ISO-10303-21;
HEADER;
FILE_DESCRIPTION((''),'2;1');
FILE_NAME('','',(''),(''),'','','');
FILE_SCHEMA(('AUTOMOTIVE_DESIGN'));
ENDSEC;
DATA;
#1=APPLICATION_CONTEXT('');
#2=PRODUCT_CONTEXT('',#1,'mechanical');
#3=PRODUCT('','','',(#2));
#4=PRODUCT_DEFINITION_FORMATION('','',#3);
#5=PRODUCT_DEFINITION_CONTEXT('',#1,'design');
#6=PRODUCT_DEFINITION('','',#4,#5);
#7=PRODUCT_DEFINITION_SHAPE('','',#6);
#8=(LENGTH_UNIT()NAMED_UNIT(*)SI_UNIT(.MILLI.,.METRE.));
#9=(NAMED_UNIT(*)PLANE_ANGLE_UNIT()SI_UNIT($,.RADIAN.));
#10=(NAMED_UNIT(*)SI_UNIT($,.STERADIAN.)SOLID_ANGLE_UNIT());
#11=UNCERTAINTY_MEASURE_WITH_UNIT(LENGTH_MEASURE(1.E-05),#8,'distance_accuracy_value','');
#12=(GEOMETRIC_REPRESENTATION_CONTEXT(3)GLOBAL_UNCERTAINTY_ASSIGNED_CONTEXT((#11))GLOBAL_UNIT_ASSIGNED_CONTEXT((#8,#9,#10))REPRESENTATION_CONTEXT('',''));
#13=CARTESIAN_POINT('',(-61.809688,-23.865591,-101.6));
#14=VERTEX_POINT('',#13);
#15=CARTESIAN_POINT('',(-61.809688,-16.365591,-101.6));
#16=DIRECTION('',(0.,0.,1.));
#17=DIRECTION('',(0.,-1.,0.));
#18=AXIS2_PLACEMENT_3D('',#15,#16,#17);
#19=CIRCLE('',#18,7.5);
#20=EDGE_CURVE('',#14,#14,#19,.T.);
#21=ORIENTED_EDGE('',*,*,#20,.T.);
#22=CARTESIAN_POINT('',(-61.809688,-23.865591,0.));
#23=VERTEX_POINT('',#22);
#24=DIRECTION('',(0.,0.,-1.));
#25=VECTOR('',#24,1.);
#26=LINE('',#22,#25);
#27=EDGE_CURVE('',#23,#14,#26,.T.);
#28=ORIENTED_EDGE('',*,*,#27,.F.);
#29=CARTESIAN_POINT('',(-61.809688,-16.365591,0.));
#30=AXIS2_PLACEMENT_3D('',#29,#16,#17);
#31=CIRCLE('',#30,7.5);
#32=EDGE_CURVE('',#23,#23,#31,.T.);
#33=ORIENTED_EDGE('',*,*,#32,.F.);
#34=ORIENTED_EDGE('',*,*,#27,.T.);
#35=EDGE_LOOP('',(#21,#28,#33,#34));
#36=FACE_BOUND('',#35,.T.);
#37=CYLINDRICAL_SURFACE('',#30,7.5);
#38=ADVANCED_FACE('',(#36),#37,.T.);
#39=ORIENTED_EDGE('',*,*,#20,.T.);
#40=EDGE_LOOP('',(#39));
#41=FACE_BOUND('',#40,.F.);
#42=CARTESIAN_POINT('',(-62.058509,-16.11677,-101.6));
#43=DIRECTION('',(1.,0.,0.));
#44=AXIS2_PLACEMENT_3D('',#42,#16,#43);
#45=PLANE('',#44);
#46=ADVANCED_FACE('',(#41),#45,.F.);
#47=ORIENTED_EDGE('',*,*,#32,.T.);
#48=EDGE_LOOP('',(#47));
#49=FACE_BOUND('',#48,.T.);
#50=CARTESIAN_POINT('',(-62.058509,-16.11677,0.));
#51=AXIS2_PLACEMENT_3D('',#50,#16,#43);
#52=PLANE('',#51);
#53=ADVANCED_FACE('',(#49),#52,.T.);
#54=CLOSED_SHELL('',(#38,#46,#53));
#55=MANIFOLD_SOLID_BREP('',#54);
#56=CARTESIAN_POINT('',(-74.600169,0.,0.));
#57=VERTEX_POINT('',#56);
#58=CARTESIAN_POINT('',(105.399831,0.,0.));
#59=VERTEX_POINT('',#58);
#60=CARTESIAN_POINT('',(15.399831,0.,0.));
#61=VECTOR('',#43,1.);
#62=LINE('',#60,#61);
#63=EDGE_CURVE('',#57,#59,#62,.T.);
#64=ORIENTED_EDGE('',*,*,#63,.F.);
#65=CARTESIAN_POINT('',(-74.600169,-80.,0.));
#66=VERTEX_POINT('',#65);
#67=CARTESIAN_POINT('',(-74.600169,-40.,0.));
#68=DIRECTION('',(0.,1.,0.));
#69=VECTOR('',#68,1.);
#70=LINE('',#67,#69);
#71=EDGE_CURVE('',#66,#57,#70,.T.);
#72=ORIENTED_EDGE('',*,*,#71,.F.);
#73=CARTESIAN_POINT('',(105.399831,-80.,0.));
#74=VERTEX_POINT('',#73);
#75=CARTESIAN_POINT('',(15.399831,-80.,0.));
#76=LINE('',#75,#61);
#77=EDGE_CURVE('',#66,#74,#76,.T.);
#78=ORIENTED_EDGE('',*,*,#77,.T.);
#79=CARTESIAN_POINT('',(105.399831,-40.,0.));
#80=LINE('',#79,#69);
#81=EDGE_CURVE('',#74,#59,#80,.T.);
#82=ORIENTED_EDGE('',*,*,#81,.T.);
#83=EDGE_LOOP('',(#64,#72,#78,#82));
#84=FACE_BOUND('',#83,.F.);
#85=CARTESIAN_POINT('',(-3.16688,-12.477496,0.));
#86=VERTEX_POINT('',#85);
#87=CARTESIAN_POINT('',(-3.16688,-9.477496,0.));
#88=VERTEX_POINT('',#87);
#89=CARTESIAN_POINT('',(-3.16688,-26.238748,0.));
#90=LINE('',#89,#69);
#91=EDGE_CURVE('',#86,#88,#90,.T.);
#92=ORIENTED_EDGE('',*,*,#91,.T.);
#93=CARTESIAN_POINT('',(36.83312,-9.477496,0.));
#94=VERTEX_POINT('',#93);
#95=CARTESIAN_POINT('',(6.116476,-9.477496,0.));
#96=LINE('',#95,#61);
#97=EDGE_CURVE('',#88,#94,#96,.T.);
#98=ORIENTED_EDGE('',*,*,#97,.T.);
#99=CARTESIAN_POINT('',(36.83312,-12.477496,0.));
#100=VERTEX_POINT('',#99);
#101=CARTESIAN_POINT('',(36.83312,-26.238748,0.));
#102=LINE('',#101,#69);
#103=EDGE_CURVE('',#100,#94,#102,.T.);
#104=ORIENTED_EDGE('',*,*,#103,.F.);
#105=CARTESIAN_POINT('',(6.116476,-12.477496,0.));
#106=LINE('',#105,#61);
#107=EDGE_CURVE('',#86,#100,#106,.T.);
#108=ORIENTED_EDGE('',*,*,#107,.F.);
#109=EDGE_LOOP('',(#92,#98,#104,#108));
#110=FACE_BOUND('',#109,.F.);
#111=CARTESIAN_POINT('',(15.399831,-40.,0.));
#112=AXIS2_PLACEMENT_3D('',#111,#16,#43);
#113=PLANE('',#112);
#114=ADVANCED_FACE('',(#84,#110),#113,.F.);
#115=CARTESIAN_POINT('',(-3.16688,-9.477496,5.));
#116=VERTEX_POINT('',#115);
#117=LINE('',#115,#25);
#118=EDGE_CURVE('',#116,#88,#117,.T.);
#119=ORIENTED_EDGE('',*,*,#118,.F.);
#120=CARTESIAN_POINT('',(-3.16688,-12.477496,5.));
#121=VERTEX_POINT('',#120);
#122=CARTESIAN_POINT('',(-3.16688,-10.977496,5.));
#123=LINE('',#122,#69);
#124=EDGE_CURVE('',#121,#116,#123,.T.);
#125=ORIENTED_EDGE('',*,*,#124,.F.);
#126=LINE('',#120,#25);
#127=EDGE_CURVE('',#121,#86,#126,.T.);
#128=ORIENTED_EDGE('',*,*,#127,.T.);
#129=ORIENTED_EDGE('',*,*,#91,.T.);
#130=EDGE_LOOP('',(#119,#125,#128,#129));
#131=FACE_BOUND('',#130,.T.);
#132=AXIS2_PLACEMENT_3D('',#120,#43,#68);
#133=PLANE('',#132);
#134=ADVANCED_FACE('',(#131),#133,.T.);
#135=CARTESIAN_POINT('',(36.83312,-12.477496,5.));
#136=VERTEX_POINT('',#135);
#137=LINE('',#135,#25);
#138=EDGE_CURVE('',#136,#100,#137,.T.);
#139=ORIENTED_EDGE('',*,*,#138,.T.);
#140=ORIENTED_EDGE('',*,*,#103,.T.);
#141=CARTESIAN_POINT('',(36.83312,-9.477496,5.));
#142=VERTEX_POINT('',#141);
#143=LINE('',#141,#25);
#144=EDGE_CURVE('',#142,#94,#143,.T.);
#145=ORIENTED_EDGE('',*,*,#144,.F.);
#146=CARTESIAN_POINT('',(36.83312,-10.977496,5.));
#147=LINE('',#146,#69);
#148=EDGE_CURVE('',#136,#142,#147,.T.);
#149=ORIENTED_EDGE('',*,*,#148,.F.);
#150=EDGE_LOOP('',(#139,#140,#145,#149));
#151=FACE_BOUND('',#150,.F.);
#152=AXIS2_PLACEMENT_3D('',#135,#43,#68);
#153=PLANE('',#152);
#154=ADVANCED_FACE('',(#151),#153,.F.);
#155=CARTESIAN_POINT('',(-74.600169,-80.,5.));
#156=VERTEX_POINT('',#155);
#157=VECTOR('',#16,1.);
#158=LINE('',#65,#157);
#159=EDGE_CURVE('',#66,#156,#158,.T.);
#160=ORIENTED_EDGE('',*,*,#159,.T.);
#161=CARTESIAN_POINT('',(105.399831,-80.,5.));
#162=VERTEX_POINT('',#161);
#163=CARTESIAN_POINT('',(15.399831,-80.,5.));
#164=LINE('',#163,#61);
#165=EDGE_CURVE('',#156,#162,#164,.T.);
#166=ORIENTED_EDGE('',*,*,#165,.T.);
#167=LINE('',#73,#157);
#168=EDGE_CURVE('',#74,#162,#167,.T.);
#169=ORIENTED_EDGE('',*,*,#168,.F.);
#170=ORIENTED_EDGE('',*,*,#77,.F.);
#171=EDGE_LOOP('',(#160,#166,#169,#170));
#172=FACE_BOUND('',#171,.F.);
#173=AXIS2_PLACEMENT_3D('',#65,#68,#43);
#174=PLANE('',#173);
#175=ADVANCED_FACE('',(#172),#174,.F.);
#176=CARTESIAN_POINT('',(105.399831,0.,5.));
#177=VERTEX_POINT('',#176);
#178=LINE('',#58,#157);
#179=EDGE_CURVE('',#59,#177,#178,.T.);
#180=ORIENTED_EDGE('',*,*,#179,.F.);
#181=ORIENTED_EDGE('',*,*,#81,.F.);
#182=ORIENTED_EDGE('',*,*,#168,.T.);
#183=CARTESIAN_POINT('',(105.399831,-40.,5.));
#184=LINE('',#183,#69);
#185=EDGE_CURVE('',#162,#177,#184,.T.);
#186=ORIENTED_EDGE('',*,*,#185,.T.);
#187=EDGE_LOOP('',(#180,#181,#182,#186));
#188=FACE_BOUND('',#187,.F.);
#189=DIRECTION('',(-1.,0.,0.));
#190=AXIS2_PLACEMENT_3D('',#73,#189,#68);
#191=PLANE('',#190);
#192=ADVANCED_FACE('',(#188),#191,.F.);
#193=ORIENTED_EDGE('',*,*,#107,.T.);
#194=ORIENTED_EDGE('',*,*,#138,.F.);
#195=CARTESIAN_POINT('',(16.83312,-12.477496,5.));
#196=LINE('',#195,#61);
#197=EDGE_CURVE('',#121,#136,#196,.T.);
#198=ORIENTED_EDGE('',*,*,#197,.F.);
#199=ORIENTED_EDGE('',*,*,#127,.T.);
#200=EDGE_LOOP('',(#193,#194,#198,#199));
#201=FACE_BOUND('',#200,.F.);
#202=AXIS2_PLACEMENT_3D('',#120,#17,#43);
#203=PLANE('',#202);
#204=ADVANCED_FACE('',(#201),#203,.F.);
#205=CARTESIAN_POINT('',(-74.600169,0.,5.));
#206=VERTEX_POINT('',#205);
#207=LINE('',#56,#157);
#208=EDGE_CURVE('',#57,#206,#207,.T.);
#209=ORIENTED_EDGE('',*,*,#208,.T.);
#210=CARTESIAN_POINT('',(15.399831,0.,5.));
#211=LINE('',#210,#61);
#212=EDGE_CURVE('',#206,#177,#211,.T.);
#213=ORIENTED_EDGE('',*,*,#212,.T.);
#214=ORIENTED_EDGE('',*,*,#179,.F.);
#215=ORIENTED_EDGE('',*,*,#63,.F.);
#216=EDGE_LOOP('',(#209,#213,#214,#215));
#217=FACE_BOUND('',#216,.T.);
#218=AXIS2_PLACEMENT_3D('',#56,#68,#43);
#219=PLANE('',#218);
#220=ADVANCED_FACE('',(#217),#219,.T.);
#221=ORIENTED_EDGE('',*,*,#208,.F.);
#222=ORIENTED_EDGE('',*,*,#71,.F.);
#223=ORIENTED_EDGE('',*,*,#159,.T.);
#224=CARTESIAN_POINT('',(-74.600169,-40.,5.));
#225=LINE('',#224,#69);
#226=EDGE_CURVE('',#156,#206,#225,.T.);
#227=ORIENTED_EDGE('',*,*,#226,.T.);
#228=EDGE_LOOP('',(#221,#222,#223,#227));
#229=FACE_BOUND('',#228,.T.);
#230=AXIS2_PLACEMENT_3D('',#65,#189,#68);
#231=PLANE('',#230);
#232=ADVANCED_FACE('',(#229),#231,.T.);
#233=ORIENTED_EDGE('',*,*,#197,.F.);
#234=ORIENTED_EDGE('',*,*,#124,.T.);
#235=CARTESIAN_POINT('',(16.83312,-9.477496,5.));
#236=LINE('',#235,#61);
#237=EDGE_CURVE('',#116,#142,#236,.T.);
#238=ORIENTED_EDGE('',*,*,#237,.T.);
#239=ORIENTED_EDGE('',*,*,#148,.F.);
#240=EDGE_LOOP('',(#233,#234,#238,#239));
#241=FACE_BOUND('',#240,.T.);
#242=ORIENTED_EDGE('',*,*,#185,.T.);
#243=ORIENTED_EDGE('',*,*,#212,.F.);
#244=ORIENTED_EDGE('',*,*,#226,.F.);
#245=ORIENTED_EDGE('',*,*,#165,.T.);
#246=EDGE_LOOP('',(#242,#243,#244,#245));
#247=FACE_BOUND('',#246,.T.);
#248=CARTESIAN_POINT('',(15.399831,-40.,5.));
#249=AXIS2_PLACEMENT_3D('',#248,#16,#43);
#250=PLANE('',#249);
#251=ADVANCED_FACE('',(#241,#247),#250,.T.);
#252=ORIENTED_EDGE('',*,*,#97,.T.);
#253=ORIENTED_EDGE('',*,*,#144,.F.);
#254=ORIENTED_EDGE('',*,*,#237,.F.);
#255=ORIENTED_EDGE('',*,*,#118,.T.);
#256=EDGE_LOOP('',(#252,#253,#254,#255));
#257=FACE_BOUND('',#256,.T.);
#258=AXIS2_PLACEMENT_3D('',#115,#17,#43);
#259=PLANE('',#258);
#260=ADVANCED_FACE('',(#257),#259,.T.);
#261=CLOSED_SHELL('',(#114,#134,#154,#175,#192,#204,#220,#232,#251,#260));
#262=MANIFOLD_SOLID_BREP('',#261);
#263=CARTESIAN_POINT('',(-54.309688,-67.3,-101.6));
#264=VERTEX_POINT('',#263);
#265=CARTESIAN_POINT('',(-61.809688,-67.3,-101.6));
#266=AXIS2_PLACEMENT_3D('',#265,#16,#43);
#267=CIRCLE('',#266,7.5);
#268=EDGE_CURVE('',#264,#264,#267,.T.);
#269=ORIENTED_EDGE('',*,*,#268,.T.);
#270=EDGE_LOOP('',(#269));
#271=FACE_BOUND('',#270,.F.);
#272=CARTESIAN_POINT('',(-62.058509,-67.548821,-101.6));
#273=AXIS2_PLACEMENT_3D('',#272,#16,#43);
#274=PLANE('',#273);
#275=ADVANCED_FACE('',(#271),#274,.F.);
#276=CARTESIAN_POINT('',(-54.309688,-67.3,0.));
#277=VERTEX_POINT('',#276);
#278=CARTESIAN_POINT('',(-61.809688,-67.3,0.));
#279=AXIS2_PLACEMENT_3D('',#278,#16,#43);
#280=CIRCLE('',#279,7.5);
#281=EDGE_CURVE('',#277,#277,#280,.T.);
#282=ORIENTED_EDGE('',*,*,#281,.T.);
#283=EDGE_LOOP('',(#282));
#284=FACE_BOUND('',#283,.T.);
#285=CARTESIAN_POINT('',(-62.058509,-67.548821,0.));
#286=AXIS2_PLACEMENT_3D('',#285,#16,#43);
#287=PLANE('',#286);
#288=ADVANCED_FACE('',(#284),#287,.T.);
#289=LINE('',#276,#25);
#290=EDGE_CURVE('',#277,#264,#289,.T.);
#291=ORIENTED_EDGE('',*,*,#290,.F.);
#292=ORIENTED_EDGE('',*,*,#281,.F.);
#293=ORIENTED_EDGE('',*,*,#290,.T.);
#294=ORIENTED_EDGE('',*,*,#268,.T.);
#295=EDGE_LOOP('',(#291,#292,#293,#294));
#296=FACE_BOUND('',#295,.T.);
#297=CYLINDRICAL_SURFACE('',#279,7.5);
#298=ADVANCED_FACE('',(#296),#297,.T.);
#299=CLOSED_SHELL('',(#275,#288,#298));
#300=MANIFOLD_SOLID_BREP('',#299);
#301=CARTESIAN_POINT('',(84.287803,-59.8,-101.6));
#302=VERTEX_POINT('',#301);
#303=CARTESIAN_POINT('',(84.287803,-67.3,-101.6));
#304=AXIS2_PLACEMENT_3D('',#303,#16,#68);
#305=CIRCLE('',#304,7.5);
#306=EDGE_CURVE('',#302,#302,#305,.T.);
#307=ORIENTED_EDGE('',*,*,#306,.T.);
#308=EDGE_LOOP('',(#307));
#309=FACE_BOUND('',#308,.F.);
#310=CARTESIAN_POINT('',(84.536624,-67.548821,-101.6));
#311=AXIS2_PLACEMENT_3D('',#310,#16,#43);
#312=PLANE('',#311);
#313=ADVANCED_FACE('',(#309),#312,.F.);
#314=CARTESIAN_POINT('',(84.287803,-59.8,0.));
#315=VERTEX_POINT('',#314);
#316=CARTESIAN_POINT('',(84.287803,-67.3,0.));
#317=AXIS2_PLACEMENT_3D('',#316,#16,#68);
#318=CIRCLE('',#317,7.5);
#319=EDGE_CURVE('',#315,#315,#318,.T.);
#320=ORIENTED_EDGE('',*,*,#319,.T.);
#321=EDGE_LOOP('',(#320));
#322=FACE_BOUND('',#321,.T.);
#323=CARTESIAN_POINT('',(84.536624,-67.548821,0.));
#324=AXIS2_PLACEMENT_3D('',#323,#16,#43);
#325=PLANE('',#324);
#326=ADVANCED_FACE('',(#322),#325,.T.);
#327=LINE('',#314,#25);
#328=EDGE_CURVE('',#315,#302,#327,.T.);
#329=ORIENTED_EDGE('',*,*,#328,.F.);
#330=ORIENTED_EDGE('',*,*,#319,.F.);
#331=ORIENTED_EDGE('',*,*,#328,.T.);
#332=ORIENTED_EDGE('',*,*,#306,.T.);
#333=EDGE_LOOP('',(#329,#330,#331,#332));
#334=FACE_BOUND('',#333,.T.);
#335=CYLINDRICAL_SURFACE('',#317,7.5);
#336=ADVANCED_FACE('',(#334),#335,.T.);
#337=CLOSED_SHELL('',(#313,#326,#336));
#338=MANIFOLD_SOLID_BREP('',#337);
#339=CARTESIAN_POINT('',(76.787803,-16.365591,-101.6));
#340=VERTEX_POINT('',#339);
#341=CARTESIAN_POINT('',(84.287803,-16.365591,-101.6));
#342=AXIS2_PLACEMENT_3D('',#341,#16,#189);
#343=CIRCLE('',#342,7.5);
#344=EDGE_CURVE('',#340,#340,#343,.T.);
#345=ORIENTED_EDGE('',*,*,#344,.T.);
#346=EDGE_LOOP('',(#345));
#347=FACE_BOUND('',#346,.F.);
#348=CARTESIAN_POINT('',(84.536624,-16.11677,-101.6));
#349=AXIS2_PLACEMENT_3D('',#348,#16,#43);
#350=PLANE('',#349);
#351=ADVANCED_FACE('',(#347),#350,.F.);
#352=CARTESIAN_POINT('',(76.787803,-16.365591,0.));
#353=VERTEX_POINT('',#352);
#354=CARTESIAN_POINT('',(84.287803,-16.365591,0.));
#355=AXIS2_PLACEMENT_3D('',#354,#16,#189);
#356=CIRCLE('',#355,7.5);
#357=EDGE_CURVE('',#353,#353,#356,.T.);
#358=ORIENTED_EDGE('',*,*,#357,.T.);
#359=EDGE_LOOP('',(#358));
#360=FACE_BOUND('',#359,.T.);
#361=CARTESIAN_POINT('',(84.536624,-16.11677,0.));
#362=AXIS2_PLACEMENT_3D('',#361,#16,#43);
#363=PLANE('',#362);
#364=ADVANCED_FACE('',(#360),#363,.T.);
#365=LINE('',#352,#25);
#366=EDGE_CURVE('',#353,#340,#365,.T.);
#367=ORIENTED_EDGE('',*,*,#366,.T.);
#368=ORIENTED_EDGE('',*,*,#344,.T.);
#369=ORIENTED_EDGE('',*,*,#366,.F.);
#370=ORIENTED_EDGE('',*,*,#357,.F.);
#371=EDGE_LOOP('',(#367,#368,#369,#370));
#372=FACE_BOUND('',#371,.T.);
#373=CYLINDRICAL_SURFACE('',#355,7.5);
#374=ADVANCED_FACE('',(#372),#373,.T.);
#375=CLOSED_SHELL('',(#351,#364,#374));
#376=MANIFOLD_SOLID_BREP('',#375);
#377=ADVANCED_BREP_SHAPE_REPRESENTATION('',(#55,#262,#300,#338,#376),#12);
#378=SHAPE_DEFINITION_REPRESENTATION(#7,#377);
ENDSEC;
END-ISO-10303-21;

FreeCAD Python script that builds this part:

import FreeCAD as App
import Part
import Sketcher

doc = App.newDocument("Part")
body = doc.addObject("PartDesign::Body", "Body")

# Sketch on XY plane
sketch1 = body.newObject("Sketcher::SketchObject", "Sketch")
sketch1.AttachmentSupport = (doc.getObject("XY_Plane"), [""])
sketch1.MapMode = "FlatFace"
sketch1.addGeometry(Part.Circle(App.Vector(-62, -67, 0), App.Vector(0, 0, 1), 8), False)
sketch1.addConstraint(Sketcher.Constraint("Diameter", 0, 15.0))
sketch1.addConstraint(Sketcher.Constraint("DistanceY", 0, 3, -1, 1, 67.3))
sketch1.addConstraint(Sketcher.Constraint("DistanceX", 0, 3, -1, 1, 61.809688))
pad1 = body.newObject("PartDesign::Pad", "Pad")
pad1.Profile = sketch1
pad1.Length = 101.6
pad1.Reversed = True
body2 = doc.addObject("PartDesign::Body", "Body001")

# Sketch on XY plane
sketch2 = body2.newObject("Sketcher::SketchObject", "Sketch001")
sketch2.AttachmentSupport = (doc.getObject("XY_Plane001"), [""])
sketch2.MapMode = "FlatFace"
sketch2.addGeometry(Part.Circle(App.Vector(84, -67, 0), App.Vector(0, 0, 1), 8), False)
sketch2.addConstraint(Sketcher.Constraint("Diameter", 0, 15.0))
sketch2.addConstraint(Sketcher.Constraint("DistanceY", 0, 3, -1, 1, 67.3))
sketch2.addConstraint(Sketcher.Constraint("DistanceX", -1, 1, 0, 3, 84.287803))
pad2 = body2.newObject("PartDesign::Pad", "Pad001")
pad2.Profile = sketch2
pad2.Length = 101.6
pad2.Reversed = True
body3 = doc.addObject("PartDesign::Body", "Body002")

# Sketch on XY plane
sketch3 = body3.newObject("Sketcher::SketchObject", "Sketch002")
sketch3.AttachmentSupport = (doc.getObject("XY_Plane002"), [""])
sketch3.MapMode = "FlatFace"
sketch3.addGeometry(Part.Circle(App.Vector(84, -16, 0), App.Vector(0, 0, 1), 8), False)
sketch3.addConstraint(Sketcher.Constraint("Diameter", 0, 15.0))
sketch3.addConstraint(Sketcher.Constraint("DistanceY", 0, 3, -1, 1, 16.365591))
sketch3.addConstraint(Sketcher.Constraint("DistanceX", -1, 1, 0, 3, 84.287803))
pad3 = body3.newObject("PartDesign::Pad", "Pad002")
pad3.Profile = sketch3
pad3.Length = 101.6
pad3.Reversed = True
body4 = doc.addObject("PartDesign::Body", "Body003")

# Sketch on XY plane
sketch4 = body4.newObject("Sketcher::SketchObject", "Sketch003")
sketch4.AttachmentSupport = (doc.getObject("XY_Plane003"), [""])
sketch4.MapMode = "FlatFace"
sketch4.addGeometry(Part.Circle(App.Vector(-62, -16, 0), App.Vector(0, 0, 1), 8), False)
sketch4.addConstraint(Sketcher.Constraint("Diameter", 0, 15.0))
sketch4.addConstraint(Sketcher.Constraint("DistanceY", 0, 3, -1, 1, 16.365591))
sketch4.addConstraint(Sketcher.Constraint("DistanceX", 0, 3, -1, 1, 61.809688))
pad4 = body4.newObject("PartDesign::Pad", "Pad003")
pad4.Profile = sketch4
pad4.Length = 101.6
pad4.Reversed = True
body5 = doc.addObject("PartDesign::Body", "Body004")

# Sketch on XY plane
sketch5 = body5.newObject("Sketcher::SketchObject", "Sketch004")
sketch5.AttachmentSupport = (doc.getObject("XY_Plane004"), [""])
sketch5.MapMode = "FlatFace"
sketch5.addGeometry(Part.LineSegment(App.Vector(-75, 0, 0), App.Vector(-75, -80, 0)), False)
sketch5.addGeometry(Part.LineSegment(App.Vector(-75, -80, 0), App.Vector(105, -80, 0)), False)
sketch5.addGeometry(Part.LineSegment(App.Vector(105, -80, 0), App.Vector(105, 0, 0)), False)
sketch5.addGeometry(Part.LineSegment(App.Vector(105, 0, 0), App.Vector(-75, 0, 0)), False)
sketch5.addConstraint(Sketcher.Constraint("Coincident", 0, 2, 1, 1))
sketch5.addConstraint(Sketcher.Constraint("Coincident", 1, 2, 2, 1))
sketch5.addConstraint(Sketcher.Constraint("Coincident", 2, 2, 3, 1))
sketch5.addConstraint(Sketcher.Constraint("Coincident", 3, 2, 0, 1))
sketch5.addConstraint(Sketcher.Constraint("Vertical", 0))
sketch5.addConstraint(Sketcher.Constraint("Horizontal", 1))
sketch5.addConstraint(Sketcher.Constraint("Vertical", 2))
sketch5.addConstraint(Sketcher.Constraint("Horizontal", 3))
sketch5.addConstraint(Sketcher.Constraint("PointOnObject", 2, 2, -1))
sketch5.addConstraint(Sketcher.Constraint("DistanceX", 1, 1, 1, 2, 180.0))
sketch5.addConstraint(Sketcher.Constraint("DistanceY", 0, 2, 0, 1, 80.0))
sketch5.addConstraint(Sketcher.Constraint("DistanceX", 0, 2, -1, 1, 74.600169))
pad5 = body5.newObject("PartDesign::Pad", "Pad004")
pad5.Profile = sketch5
pad5.Length = 5

# Sketch on XY plane
sketch6 = body5.newObject("Sketcher::SketchObject", "Sketch005")
sketch6.AttachmentSupport = (doc.getObject("XY_Plane004"), [""])
sketch6.MapMode = "FlatFace"
sketch6.AttachmentOffset = App.Placement(App.Vector(0, 0, 5), App.Rotation())
sketch6.addGeometry(Part.LineSegment(App.Vector(-3.2, -9.5, 0), App.Vector(-3.2, -12.5, 0)), False)
sketch6.addGeometry(Part.LineSegment(App.Vector(-3.2, -12.5, 0), App.Vector(36.8, -12.5, 0)), False)
sketch6.addGeometry(Part.LineSegment(App.Vector(36.8, -12.5, 0), App.Vector(36.8, -9.5, 0)), False)
sketch6.addGeometry(Part.LineSegment(App.Vector(36.8, -9.5, 0), App.Vector(-3.2, -9.5, 0)), False)
sketch6.addConstraint(Sketcher.Constraint("Coincident", 0, 2, 1, 1))
sketch6.addConstraint(Sketcher.Constraint("Coincident", 1, 2, 2, 1))
sketch6.addConstraint(Sketcher.Constraint("Coincident", 2, 2, 3, 1))
sketch6.addConstraint(Sketcher.Constraint("Coincident", 3, 2, 0, 1))
sketch6.addConstraint(Sketcher.Constraint("Vertical", 0))
sketch6.addConstraint(Sketcher.Constraint("Horizontal", 1))
sketch6.addConstraint(Sketcher.Constraint("Vertical", 2))
sketch6.addConstraint(Sketcher.Constraint("Horizontal", 3))
sketch6.addConstraint(Sketcher.Constraint("DistanceX", 1, 1, 1, 2, 40.0))
sketch6.addConstraint(Sketcher.Constraint("DistanceY", 0, 2, 0, 1, 3.0))
sketch6.addConstraint(Sketcher.Constraint("DistanceX", 0, 2, -1, 1, 3.16688))
sketch6.addConstraint(Sketcher.Constraint("DistanceY", 0, 2, -1, 1, 12.477496))
pocket1 = body5.newObject("PartDesign::Pocket", "Pocket")
pocket1.Profile = sketch6
pocket1.Length = 25.4

doc.recompute()
